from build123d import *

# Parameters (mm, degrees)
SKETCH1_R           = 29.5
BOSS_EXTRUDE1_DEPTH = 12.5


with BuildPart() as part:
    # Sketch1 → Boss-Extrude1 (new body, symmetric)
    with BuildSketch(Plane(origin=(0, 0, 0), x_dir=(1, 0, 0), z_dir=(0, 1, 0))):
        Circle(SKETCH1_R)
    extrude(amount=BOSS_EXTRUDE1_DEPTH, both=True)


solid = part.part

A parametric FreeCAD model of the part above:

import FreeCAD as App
import Part
import Sketcher

V = App.Vector

doc = App.newDocument("Part")
body = doc.addObject("PartDesign::Body", "Body")

# Sketch on XZ plane
sketch1 = body.newObject("Sketcher::SketchObject", "Sketch")
sketch1.AttachmentSupport = (doc.getObject("XZ_Plane"), [""])
sketch1.MapMode = "FlatFace"
sketch1.addGeometry(Part.Circle(V(0, 0, 0), V(0, 0, 1), 30), False)
sketch1.addConstraint(Sketcher.Constraint("Coincident", 0, 3, -1, 1))
sketch1.addConstraint(Sketcher.Constraint("Diameter", 0, 59.0))
pad1 = body.newObject("PartDesign::Pad", "Pad")
pad1.Profile = sketch1
pad1.Length = 25
pad1.Midplane = True

doc.recompute()
